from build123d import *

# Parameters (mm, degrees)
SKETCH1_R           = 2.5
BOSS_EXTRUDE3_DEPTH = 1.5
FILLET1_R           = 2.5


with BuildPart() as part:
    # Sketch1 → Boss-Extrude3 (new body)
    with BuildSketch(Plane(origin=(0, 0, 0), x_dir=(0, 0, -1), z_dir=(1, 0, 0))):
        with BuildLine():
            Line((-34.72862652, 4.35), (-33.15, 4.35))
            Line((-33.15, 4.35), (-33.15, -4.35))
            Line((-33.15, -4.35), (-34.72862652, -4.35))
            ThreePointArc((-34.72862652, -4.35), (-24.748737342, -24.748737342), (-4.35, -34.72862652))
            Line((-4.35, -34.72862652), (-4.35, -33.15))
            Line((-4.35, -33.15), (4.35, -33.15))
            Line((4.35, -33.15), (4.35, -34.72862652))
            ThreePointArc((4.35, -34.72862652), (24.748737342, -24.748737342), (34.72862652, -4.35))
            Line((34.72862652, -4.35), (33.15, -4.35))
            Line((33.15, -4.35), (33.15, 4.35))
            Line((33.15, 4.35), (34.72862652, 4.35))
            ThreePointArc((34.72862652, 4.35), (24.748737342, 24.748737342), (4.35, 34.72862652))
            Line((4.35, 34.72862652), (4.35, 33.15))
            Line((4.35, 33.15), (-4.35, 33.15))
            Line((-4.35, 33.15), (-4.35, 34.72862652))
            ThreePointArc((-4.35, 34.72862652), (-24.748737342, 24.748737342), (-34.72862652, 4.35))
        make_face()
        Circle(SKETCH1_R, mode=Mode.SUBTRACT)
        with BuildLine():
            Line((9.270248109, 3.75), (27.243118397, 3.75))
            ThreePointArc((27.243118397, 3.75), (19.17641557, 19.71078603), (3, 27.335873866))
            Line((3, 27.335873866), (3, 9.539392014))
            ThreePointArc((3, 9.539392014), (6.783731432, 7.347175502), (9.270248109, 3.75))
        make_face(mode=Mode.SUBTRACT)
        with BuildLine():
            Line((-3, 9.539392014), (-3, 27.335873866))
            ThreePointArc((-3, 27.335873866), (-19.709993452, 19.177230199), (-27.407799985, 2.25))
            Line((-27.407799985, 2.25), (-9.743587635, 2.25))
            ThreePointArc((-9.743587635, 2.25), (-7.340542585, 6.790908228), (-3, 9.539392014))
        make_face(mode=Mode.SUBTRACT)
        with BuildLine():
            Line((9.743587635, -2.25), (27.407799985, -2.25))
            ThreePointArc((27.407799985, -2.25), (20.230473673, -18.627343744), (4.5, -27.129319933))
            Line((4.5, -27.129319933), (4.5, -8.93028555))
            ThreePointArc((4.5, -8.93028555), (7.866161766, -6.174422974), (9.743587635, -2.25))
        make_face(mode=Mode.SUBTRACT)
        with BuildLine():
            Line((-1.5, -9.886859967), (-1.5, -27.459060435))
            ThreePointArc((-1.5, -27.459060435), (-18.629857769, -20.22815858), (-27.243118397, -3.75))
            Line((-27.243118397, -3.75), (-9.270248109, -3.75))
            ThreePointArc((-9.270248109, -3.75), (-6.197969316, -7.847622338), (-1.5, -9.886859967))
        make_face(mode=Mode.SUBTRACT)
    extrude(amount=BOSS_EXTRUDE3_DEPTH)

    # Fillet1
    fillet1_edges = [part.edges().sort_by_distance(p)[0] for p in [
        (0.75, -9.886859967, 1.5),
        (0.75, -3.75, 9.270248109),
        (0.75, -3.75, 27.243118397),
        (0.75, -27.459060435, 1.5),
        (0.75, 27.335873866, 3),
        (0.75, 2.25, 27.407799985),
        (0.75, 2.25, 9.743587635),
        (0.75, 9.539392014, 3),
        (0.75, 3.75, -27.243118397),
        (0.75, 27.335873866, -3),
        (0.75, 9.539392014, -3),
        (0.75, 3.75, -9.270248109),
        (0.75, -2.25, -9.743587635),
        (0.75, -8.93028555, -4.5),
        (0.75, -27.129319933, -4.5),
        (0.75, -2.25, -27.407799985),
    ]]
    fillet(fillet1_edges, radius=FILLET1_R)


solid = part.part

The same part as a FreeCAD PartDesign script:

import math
import FreeCAD as App
import Part
import Sketcher
from FreeCAD import Vector


def edges_at(feature, points):
    """Names of the edges that pass closest to the given points."""
    edges = feature.Shape.Edges
    near = lambda p: min(range(len(edges)), key=lambda i: edges[i].distToShape(Part.Vertex(*p))[0])
    return sorted({f"Edge{near(p) + 1}" for p in points})

doc = App.newDocument("Part")
body = doc.addObject("PartDesign::Body", "Body")

# Sketch on YZ plane
sketch1 = body.newObject("Sketcher::SketchObject", "Sketch")
sketch1.AttachmentSupport = (doc.getObject("YZ_Plane"), [""])
sketch1.MapMode = "FlatFace"
sketch1.addGeometry([
    Part.LineSegment(Vector(4.35, 34.728627, 0), Vector(4.35, 33.15, 0)),  # 0
    Part.LineSegment(Vector(4.35, 33.15, 0), Vector(-4.35, 33.15, 0)),  # 1
    Part.LineSegment(Vector(-4.35, 33.15, 0), Vector(-4.35, 34.728627, 0)),  # 2
    Part.ArcOfCircle(Part.Circle(Vector(0, 0, 0), Vector(0, 0, 1), 35), math.radians(97.139509), math.radians(172.860491)),  # 3
    Part.LineSegment(Vector(-34.728627, 4.35, 0), Vector(-33.15, 4.35, 0)),  # 4
    Part.LineSegment(Vector(-33.15, 4.35, 0), Vector(-33.15, -4.35, 0)),  # 5
    Part.LineSegment(Vector(-33.15, -4.35, 0), Vector(-34.728627, -4.35, 0)),  # 6
    Part.ArcOfCircle(Part.Circle(Vector(0, 0, 0), Vector(0, 0, 1), 35), math.radians(-172.860491), math.radians(-97.139509)),  # 7
    Part.LineSegment(Vector(-4.35, -34.728627, 0), Vector(-4.35, -33.15, 0)),  # 8
    Part.LineSegment(Vector(-4.35, -33.15, 0), Vector(4.35, -33.15, 0)),  # 9
    Part.LineSegment(Vector(4.35, -33.15, 0), Vector(4.35, -34.728627, 0)),  # 10
    Part.ArcOfCircle(Part.Circle(Vector(0, 0, 0), Vector(0, 0, 1), 35), math.radians(-82.860491), math.radians(-7.139509)),  # 11
    Part.LineSegment(Vector(34.728627, -4.35, 0), Vector(33.15, -4.35, 0)),  # 12
    Part.LineSegment(Vector(33.15, -4.35, 0), Vector(33.15, 4.35, 0)),  # 13
    Part.LineSegment(Vector(33.15, 4.35, 0), Vector(34.728627, 4.35, 0)),  # 14
    Part.ArcOfCircle(Part.Circle(Vector(0, 0, 0), Vector(0, 0, 1), 35), math.radians(7.139509), math.radians(82.860491)),  # 15
    Part.ArcOfCircle(Part.Circle(Vector(0, 0, 0), Vector(0, 0, 1), 10), math.radians(112.024313), math.radians(171.373073)),  # 16
    Part.LineSegment(Vector(-9.88686, 1.5, 0), Vector(-27.45906, 1.5, 0)),  # 17
    Part.ArcOfCircle(Part.Circle(Vector(0, 0, 0), Vector(0, 0, 1), 27.5), math.radians(97.83748), math.radians(176.873224)),  # 18
    Part.LineSegment(Vector(-3.75, 27.243118, 0), Vector(-3.75, 9.270248, 0)),  # 19
    Part.ArcOfCircle(Part.Circle(Vector(0, 0, 0), Vector(0, 0, 1), 10), math.radians(-153.256316), math.radians(-103.002878)),  # 20
    Part.LineSegment(Vector(-2.25, -9.743588, 0), Vector(-2.25, -27.4078, 0)),  # 21
    Part.ArcOfCircle(Part.Circle(Vector(0, 0, 0), Vector(0, 0, 1), 27.5), math.radians(-170.581973), math.radians(-94.693083)),  # 22
    Part.LineSegment(Vector(-27.12932, -4.5, 0), Vector(-8.930286, -4.5, 0)),  # 23
    Part.Circle(Vector(0, 0, 0), Vector(0, 0, 1), 2.5),  # 24
    Part.LineSegment(Vector(27.335874, 3, 0), Vector(9.539392, 3, 0)),  # 25
    Part.ArcOfCircle(Part.Circle(Vector(0, 0, 0), Vector(0, 0, 1), 10), math.radians(17.457603), math.radians(76.997122)),  # 26
    Part.LineSegment(Vector(2.25, 9.743588, 0), Vector(2.25, 27.4078, 0)),  # 27
    Part.ArcOfCircle(Part.Circle(Vector(0, 0, 0), Vector(0, 0, 1), 27.5), math.radians(6.262913), math.radians(85.306917)),  # 28
    Part.LineSegment(Vector(3.75, -27.243118, 0), Vector(3.75, -9.270248, 0)),  # 29
    Part.ArcOfCircle(Part.Circle(Vector(0, 0, 0), Vector(0, 0, 1), 10), math.radians(-67.975687), math.radians(-17.457603)),  # 30
    Part.LineSegment(Vector(9.539392, -3, 0), Vector(27.335874, -3, 0)),  # 31
    Part.ArcOfCircle(Part.Circle(Vector(0, 0, 0), Vector(0, 0, 1), 27.5), math.radians(-82.16252), math.radians(-6.262913)),  # 32
], False)
sketch1.addConstraint([
    Sketcher.Constraint("Coincident", 0, 2, 1, 1),
    Sketcher.Constraint("Coincident", 1, 2, 2, 1),
    Sketcher.Constraint("Coincident", 2, 2, 3, 1),
    Sketcher.Constraint("Coincident", 3, 2, 4, 1),
    Sketcher.Constraint("Coincident", 4, 2, 5, 1),
    Sketcher.Constraint("Coincident", 5, 2, 6, 1),
    Sketcher.Constraint("Coincident", 6, 2, 7, 1),
    Sketcher.Constraint("Coincident", 7, 2, 8, 1),
    Sketcher.Constraint("Coincident", 8, 2, 9, 1),
    Sketcher.Constraint("Coincident", 9, 2, 10, 1),
    Sketcher.Constraint("Coincident", 10, 2, 11, 1),
    Sketcher.Constraint("Coincident", 11, 2, 12, 1),
    Sketcher.Constraint("Coincident", 12, 2, 13, 1),
    Sketcher.Constraint("Coincident", 13, 2, 14, 1),
    Sketcher.Constraint("Coincident", 14, 2, 15, 1),
    Sketcher.Constraint("Coincident", 15, 2, 0, 1),
    Sketcher.Constraint("Coincident", 16, 2, 17, 1),
    Sketcher.Constraint("Coincident", 17, 2, 18, 2),
    Sketcher.Constraint("Coincident", 18, 1, 19, 1),
    Sketcher.Constraint("Coincident", 19, 2, 16, 1),
    Sketcher.Constraint("Coincident", 20, 2, 21, 1),
    Sketcher.Constraint("Coincident", 21, 2, 22, 2),
    Sketcher.Constraint("Coincident", 22, 1, 23, 1),
    Sketcher.Constraint("Coincident", 23, 2, 20, 1),
    Sketcher.Constraint("Coincident", 25, 2, 26, 1),
    Sketcher.Constraint("Coincident", 26, 2, 27, 1),
    Sketcher.Constraint("Coincident", 27, 2, 28, 2),
    Sketcher.Constraint("Coincident", 28, 1, 25, 1),
    Sketcher.Constraint("Coincident", 29, 2, 30, 1),
    Sketcher.Constraint("Coincident", 30, 2, 31, 1),
    Sketcher.Constraint("Coincident", 31, 2, 32, 2),
    Sketcher.Constraint("Coincident", 32, 1, 29, 1),
    Sketcher.Constraint("Vertical", 0),
    Sketcher.Constraint("Horizontal", 1),
    Sketcher.Constraint("Vertical", 2),
    Sketcher.Constraint("Horizontal", 4),
    Sketcher.Constraint("Vertical", 5),
    Sketcher.Constraint("Horizontal", 6),
    Sketcher.Constraint("Vertical", 8),
    Sketcher.Constraint("Horizontal", 9),
    Sketcher.Constraint("Vertical", 10),
    Sketcher.Constraint("Horizontal", 12),
    Sketcher.Constraint("Vertical", 13),
    Sketcher.Constraint("Horizontal", 14),
    Sketcher.Constraint("Horizontal", 17),
    Sketcher.Constraint("Vertical", 19),
    Sketcher.Constraint("Vertical", 21),
    Sketcher.Constraint("Horizontal", 23),
    Sketcher.Constraint("Horizontal", 25),
    Sketcher.Constraint("Vertical", 27),
    Sketcher.Constraint("Vertical", 29),
    Sketcher.Constraint("Horizontal", 31),
    Sketcher.Constraint("Coincident", 3, 3, -1, 1),
    Sketcher.Constraint("Coincident", 7, 3, -1, 1),
    Sketcher.Constraint("Coincident", 11, 3, -1, 1),
    Sketcher.Constraint("Coincident", 15, 3, -1, 1),
    Sketcher.Constraint("Coincident", 16, 3, -1, 1),
    Sketcher.Constraint("Coincident", 18, 3, -1, 1),
    Sketcher.Constraint("Coincident", 20, 3, -1, 1),
    Sketcher.Constraint("Coincident", 22, 3, -1, 1),
    Sketcher.Constraint("Coincident", 24, 3, -1, 1),
    Sketcher.Constraint("Coincident", 26, 3, -1, 1),
    Sketcher.Constraint("Coincident", 28, 3, -1, 1),
    Sketcher.Constraint("Coincident", 30, 3, -1, 1),
    Sketcher.Constraint("Coincident", 32, 3, -1, 1),
    Sketcher.Constraint("Equal", 3, 7),
    Sketcher.Constraint("Equal", 7, 11),
    Sketcher.Constraint("Equal", 11, 15),
    Sketcher.Constraint("Equal", 16, 20),
    Sketcher.Constraint("Equal", 18, 22),
    Sketcher.Constraint("Equal", 20, 26),
    Sketcher.Constraint("Equal", 22, 28),
    Sketcher.Constraint("Equal", 26, 30),
    Sketcher.Constraint("Equal", 28, 32),
    Sketcher.Constraint("Symmetric", 0, 2, 8, 2, -1, 1),
    Sketcher.Constraint("Symmetric", 4, 2, 12, 2, -1, 1),
    Sketcher.Constraint("Horizontal", 7, 2, 10, 2),
    Sketcher.Constraint("Horizontal", 6, 2, 11, 2),
    Sketcher.Constraint("Horizontal", 4, 2, 13, 2),
    Sketcher.Constraint("Horizontal", 2, 2, 15, 2),
    Sketcher.Constraint("Vertical", 25, 2, 30, 2),
    Sketcher.Constraint("Equal", 14, 0),
    Sketcher.Constraint("Equal", 9, 5),
    Sketcher.Constraint("Equal", 21, 27),
    Sketcher.Constraint("Equal", 19, 29),
    Sketcher.Constraint("Diameter", 24, 5.0),
    Sketcher.Constraint("Radius", 3, 35.0),
    Sketcher.Constraint("Radius", 16, 10.0),
    Sketcher.Constraint("Radius", 18, 27.5),
    Sketcher.Constraint("DistanceX", 1, 2, 1, 1, 8.7),
    Sketcher.Constraint("DistanceY", -1, 1, 25, 2, 3.0),
    Sketcher.Constraint("DistanceY", 22, 1, 17, 2, 6.0),
    Sketcher.Constraint("DistanceX", 19, 2, 26, 2, 6.0),
    Sketcher.Constraint("DistanceY", -1, 1, 16, 2, 1.5),
    Sketcher.Constraint("DistanceX", 1, 2, 18, 1, 0.6),
    Sketcher.Constraint("DistanceY", -1, 1, 0, 2, 33.15),
])
pad1 = body.newObject("PartDesign::Pad", "Pad")
pad1.Profile = sketch1
pad1.Length = 1.5
doc.recompute()

fillet = body.newObject("PartDesign::Fillet", "Fillet")
fillet.Base = (pad1, edges_at(pad1, [
    (0.75, -9.887, 1.5),
    (0.75, -3.75, 9.27),
    (0.75, -3.75, 27.243),
    (0.75, -27.459, 1.5),
    (0.75, 27.336, 3),
    (0.75, 2.25, 27.408),
    (0.75, 2.25, 9.744),
    (0.75, 9.539, 3),
    (0.75, 3.75, -27.243),
    (0.75, 27.336, -3),
    (0.75, 9.539, -3),
    (0.75, 3.75, -9.27),
    (0.75, -2.25, -9.744),
    (0.75, -8.93, -4.5),
    (0.75, -27.129, -4.5),
    (0.75, -2.25, -27.408),
]))
fillet.Radius = 2.5

doc.recompute()
